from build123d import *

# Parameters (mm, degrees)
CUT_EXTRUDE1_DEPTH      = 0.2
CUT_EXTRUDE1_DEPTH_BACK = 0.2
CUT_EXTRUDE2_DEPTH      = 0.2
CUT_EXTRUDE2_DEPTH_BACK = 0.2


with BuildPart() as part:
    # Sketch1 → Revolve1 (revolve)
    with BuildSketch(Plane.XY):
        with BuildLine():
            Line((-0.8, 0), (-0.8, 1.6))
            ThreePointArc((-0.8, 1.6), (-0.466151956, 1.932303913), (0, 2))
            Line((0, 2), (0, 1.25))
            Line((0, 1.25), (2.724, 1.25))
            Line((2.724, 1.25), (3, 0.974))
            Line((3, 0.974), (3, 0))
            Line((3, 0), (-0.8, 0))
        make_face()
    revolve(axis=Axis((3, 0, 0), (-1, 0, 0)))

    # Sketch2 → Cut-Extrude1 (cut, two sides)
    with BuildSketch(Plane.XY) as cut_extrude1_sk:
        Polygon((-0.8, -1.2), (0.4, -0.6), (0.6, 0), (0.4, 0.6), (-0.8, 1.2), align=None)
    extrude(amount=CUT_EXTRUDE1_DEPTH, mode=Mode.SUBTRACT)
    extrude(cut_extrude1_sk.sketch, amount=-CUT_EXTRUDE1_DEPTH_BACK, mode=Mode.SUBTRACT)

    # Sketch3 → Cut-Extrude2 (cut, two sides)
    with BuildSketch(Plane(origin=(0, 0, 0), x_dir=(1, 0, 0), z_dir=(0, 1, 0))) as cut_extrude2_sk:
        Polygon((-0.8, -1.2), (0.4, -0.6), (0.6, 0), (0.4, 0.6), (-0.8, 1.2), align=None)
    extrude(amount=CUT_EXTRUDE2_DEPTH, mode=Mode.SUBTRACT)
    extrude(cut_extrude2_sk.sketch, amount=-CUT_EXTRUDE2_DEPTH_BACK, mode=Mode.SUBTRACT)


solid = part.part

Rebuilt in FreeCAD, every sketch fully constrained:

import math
import FreeCAD as App
import Part
import Sketcher
from FreeCAD import Vector
Q = App.Units.Quantity

doc = App.newDocument("Part")
body = doc.addObject("PartDesign::Body", "Body")

# Sketch on XY plane
sketch1 = body.newObject("Sketcher::SketchObject", "Sketch")
sketch1.AttachmentSupport = (doc.getObject("XY_Plane"), [""])
sketch1.MapMode = "FlatFace"
sketch1.addGeometry([
    Part.LineSegment(Vector(-0.8, 1.6, 0), Vector(-0.8, 0, 0)),  # 0
    Part.LineSegment(Vector(-0.8, 0, 0), Vector(3, 0, 0)),  # 1
    Part.LineSegment(Vector(3, 0, 0), Vector(3, 0.97, 0)),  # 2
    Part.LineSegment(Vector(3, 0.97, 0), Vector(2.72, 1.25, 0)),  # 3
    Part.LineSegment(Vector(2.72, 1.25, 0), Vector(0, 1.25, 0)),  # 4
    Part.LineSegment(Vector(0, 1.25, 0), Vector(0, 2, 0)),  # 5
    Part.ArcOfCircle(Part.Circle(Vector(-0.13, 1.26, 0), Vector(0, 0, 1), 0.75), math.radians(80), math.radians(153)),  # 6
], False)
sketch1.addConstraint([
    Sketcher.Constraint("Coincident", 0, 2, 1, 1),
    Sketcher.Constraint("Coincident", 1, 2, 2, 1),
    Sketcher.Constraint("Coincident", 2, 2, 3, 1),
    Sketcher.Constraint("Coincident", 3, 2, 4, 1),
    Sketcher.Constraint("Coincident", 4, 2, 5, 1),
    Sketcher.Constraint("Coincident", 5, 2, 6, 1),
    Sketcher.Constraint("Coincident", 6, 2, 0, 1),
    Sketcher.Constraint("Vertical", 0),
    Sketcher.Constraint("Horizontal", 1),
    Sketcher.Constraint("Vertical", 2),
    Sketcher.Constraint("Horizontal", 4),
    Sketcher.Constraint("Vertical", 5),
    Sketcher.Constraint("PointOnObject", 0, 2, -1),
    Sketcher.Constraint("PointOnObject", 4, 2, -2),
    Sketcher.Constraint("Angle", 3, Q("135 deg")),
    Sketcher.Constraint("Radius", 6, Q("0.75 mm")),
    Sketcher.Constraint("DistanceX", 1, 1, 1, 2, Q("3.8 mm")),
    Sketcher.Constraint("DistanceY", 0, 2, 0, 1, Q("1.6 mm")),
    Sketcher.Constraint("DistanceX", -1, 1, 1, 2, Q("3 mm")),
    Sketcher.Constraint("DistanceY", -1, 1, 5, 2, Q("2 mm")),
    Sketcher.Constraint("DistanceY", 5, 1, 5, 2, Q("0.75 mm")),
    Sketcher.Constraint("DistanceX", 4, 2, 4, 1, Q("2.724 mm")),
])
revolution = body.newObject("PartDesign::Revolution", "Revolution")
revolution.Profile = sketch1
revolution.ReferenceAxis = (sketch1, ["H_Axis"])
revolution.Angle = 360

# Sketch on XY plane
sketch2 = body.newObject("Sketcher::SketchObject", "Sketch001")
sketch2.AttachmentSupport = (doc.getObject("XY_Plane"), [""])
sketch2.MapMode = "FlatFace"
sketch2.addGeometry([
    Part.LineSegment(Vector(-0.8, -1.2, 0), Vector(0.4, -0.6, 0)),  # 0
    Part.LineSegment(Vector(0.4, -0.6, 0), Vector(0.6, 0, 0)),  # 1
    Part.LineSegment(Vector(0.6, 0, 0), Vector(0.4, 0.6, 0)),  # 2
    Part.LineSegment(Vector(0.4, 0.6, 0), Vector(-0.8, 1.2, 0)),  # 3
    Part.LineSegment(Vector(-0.8, 1.2, 0), Vector(-0.8, -1.2, 0)),  # 4
], False)
sketch2.addConstraint([
    Sketcher.Constraint("Coincident", 0, 2, 1, 1),
    Sketcher.Constraint("Coincident", 1, 2, 2, 1),
    Sketcher.Constraint("Coincident", 2, 2, 3, 1),
    Sketcher.Constraint("Coincident", 3, 2, 4, 1),
    Sketcher.Constraint("Coincident", 4, 2, 0, 1),
    Sketcher.Constraint("Vertical", 4),
    Sketcher.Constraint("Symmetric", 0, 2, 2, 2, -1),
    Sketcher.Constraint("PointOnObject", 1, 2, -1),
    Sketcher.Constraint("Equal", 0, 3),
    Sketcher.Constraint("DistanceY", 4, 2, 4, 1, Q("2.4 mm")),
    Sketcher.Constraint("DistanceX", -1, 1, 0, 2, Q("0.4 mm")),
    Sketcher.Constraint("DistanceY", 0, 2, -1, 1, Q("0.6 mm")),
    Sketcher.Constraint("DistanceX", -1, 1, 1, 2, Q("0.6 mm")),
    Sketcher.Constraint("DistanceX", 3, 2, -1, 1, Q("0.8 mm")),
])
pocket1 = body.newObject("PartDesign::Pocket", "Pocket")
pocket1.Profile = sketch2
pocket1.Type = "TwoLengths"
pocket1.Length = 0.2
pocket1.Length2 = 0.2
pocket1.Reversed = True

# Sketch on XZ plane
sketch3 = body.newObject("Sketcher::SketchObject", "Sketch002")
sketch3.AttachmentSupport = (doc.getObject("XZ_Plane"), [""])
sketch3.MapMode = "FlatFace"
sketch3.addGeometry([
    Part.LineSegment(Vector(-0.8, 1.2, 0), Vector(0.4, 0.6, 0)),  # 0
    Part.LineSegment(Vector(0.4, 0.6, 0), Vector(0.6, 0, 0)),  # 1
    Part.LineSegment(Vector(0.6, 0, 0), Vector(0.4, -0.6, 0)),  # 2
    Part.LineSegment(Vector(0.4, -0.6, 0), Vector(-0.8, -1.2, 0)),  # 3
    Part.LineSegment(Vector(-0.8, -1.2, 0), Vector(-0.8, 1.2, 0)),  # 4
], False)
sketch3.addConstraint([
    Sketcher.Constraint("Coincident", 0, 2, 1, 1),
    Sketcher.Constraint("Coincident", 1, 2, 2, 1),
    Sketcher.Constraint("Coincident", 2, 2, 3, 1),
    Sketcher.Constraint("Coincident", 3, 2, 4, 1),
    Sketcher.Constraint("Coincident", 4, 2, 0, 1),
    Sketcher.Constraint("Vertical", 4),
    Sketcher.Constraint("Symmetric", 0, 2, 2, 2, -1),
    Sketcher.Constraint("PointOnObject", 1, 2, -1),
    Sketcher.Constraint("Equal", 0, 3),
    Sketcher.Constraint("DistanceY", 4, 1, 4, 2, Q("2.4 mm")),
    Sketcher.Constraint("DistanceX", -1, 1, 0, 2, Q("0.4 mm")),
    Sketcher.Constraint("DistanceY", -1, 1, 0, 2, Q("0.6 mm")),
    Sketcher.Constraint("DistanceX", -1, 1, 1, 2, Q("0.6 mm")),
    Sketcher.Constraint("DistanceX", 3, 2, -1, 1, Q("0.8 mm")),
])
pocket2 = body.newObject("PartDesign::Pocket", "Pocket001")
pocket2.Profile = sketch3
pocket2.Type = "TwoLengths"
pocket2.Length = 0.2
pocket2.Length2 = 0.2

doc.recompute()
